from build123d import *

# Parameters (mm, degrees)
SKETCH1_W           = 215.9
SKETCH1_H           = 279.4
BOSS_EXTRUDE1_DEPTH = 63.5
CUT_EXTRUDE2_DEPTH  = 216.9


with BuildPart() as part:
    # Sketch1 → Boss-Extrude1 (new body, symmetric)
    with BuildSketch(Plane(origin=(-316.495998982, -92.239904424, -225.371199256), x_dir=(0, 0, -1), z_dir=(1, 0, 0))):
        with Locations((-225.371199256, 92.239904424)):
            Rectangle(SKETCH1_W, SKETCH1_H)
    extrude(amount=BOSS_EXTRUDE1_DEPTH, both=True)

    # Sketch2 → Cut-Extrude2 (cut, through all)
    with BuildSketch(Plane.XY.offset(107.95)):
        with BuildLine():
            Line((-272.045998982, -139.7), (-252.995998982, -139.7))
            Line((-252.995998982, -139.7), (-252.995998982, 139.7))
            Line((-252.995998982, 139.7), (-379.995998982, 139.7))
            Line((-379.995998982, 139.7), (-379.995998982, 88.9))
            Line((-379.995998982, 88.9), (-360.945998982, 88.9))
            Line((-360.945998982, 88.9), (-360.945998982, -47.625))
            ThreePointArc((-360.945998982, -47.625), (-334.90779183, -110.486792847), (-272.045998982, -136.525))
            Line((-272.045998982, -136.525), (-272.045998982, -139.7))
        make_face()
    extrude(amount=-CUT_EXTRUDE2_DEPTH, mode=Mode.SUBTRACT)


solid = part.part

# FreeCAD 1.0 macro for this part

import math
import FreeCAD as App
import Part
import Sketcher
Q = App.Units.Quantity

doc = App.newDocument("Part")
body = doc.addObject("PartDesign::Body", "Body")

sketch1 = body.newObject("Sketcher::SketchObject", "Sketch")
sketch1.AttachmentSupport = (doc.getObject("YZ_Plane"), [""])
sketch1.MapMode = "FlatFace"
sketch1.AttachmentOffset = App.Placement(App.Vector(0, 0, -316.495999), App.Rotation())
sketch1.addGeometry([
    Part.LineSegment(App.Vector(139.7, 107.95, 0), App.Vector(-139.7, 107.95, 0)),
    Part.LineSegment(App.Vector(-139.7, 107.95, 0), App.Vector(-139.7, -107.95, 0)),
    Part.LineSegment(App.Vector(-139.7, -107.95, 0), App.Vector(139.7, -107.95, 0)),
    Part.LineSegment(App.Vector(139.7, -107.95, 0), App.Vector(139.7, 107.95, 0)),
], False)
sketch1.addConstraint([
    Sketcher.Constraint("Coincident", 0, 2, 1, 1),
    Sketcher.Constraint("Coincident", 1, 2, 2, 1),
    Sketcher.Constraint("Coincident", 2, 2, 3, 1),
    Sketcher.Constraint("Coincident", 3, 2, 0, 1),
    Sketcher.Constraint("Horizontal", 0),
    Sketcher.Constraint("Vertical", 1),
    Sketcher.Constraint("Horizontal", 2),
    Sketcher.Constraint("Vertical", 3),
    Sketcher.Constraint("Symmetric", 0, 2, 2, 2, -1, 1),
    Sketcher.Constraint("DistanceX", 0, 2, 0, 1, Q("11 in")),
    Sketcher.Constraint("DistanceY", 1, 2, 1, 1, Q("8.5 in")),
])
pad1 = body.newObject("PartDesign::Pad", "Pad")
pad1.Profile = sketch1
pad1.Length = Q("5 in")
pad1.Midplane = True

sketch2 = body.newObject("Sketcher::SketchObject", "Sketch001")
sketch2.AttachmentSupport = (doc.getObject("XY_Plane"), [""])
sketch2.MapMode = "FlatFace"
sketch2.AttachmentOffset = App.Placement(App.Vector(0, 0, 4.25 * 25.4), App.Rotation())
sketch2.addGeometry([
    Part.LineSegment(App.Vector(-272.045999, -139.7, 0), App.Vector(-252.995999, -139.7, 0)),
    Part.LineSegment(App.Vector(-252.995999, -139.7, 0), App.Vector(-252.995999, 139.7, 0)),
    Part.LineSegment(App.Vector(-252.995999, 139.7, 0), App.Vector(-379.995999, 139.7, 0)),
    Part.LineSegment(App.Vector(-379.995999, 139.7, 0), App.Vector(-379.995999, 88.9, 0)),
    Part.LineSegment(App.Vector(-379.995999, 88.9, 0), App.Vector(-360.945999, 88.9, 0)),
    Part.LineSegment(App.Vector(-360.945999, 88.9, 0), App.Vector(-360.945999, -47.625, 0)),
    Part.ArcOfCircle(Part.Circle(App.Vector(-272.045999, -47.625, 0), App.Vector(0, 0, 1), 88.9), math.radians(180), math.radians(270)),
    Part.LineSegment(App.Vector(-272.045999, -136.525, 0), App.Vector(-272.045999, -139.7, 0)),
], False)
sketch2.addConstraint([
    Sketcher.Constraint("Coincident", 0, 2, 1, 1),
    Sketcher.Constraint("Coincident", 1, 2, 2, 1),
    Sketcher.Constraint("Coincident", 2, 2, 3, 1),
    Sketcher.Constraint("Coincident", 3, 2, 4, 1),
    Sketcher.Constraint("Coincident", 4, 2, 5, 1),
    Sketcher.Constraint("Tangent", 5, 2, 6, 1),
    Sketcher.Constraint("Coincident", 6, 2, 7, 1),
    Sketcher.Constraint("Coincident", 7, 2, 0, 1),
    Sketcher.Constraint("Horizontal", 0),
    Sketcher.Constraint("Vertical", 1),
    Sketcher.Constraint("Horizontal", 2),
    Sketcher.Constraint("Vertical", 3),
    Sketcher.Constraint("Horizontal", 4),
    Sketcher.Constraint("Vertical", 5),
    Sketcher.Constraint("Vertical", 7),
    Sketcher.Constraint("Equal", 0, 4),
    Sketcher.Constraint("Radius", 6, Q("3.5 in")),
    Sketcher.Constraint("DistanceX", 2, 2, 2, 1, Q("5 in")),
    Sketcher.Constraint("DistanceY", 1, 1, 1, 2, Q("11 in")),
    Sketcher.Constraint("DistanceY", 3, 2, 3, 1, Q("2 in")),
    Sketcher.Constraint("DistanceX", 0, 1, 0, 2, Q("0.75 in")),
    Sketcher.Constraint("DistanceY", 0, 2, -1, 1, Q("5.5 in")),
    Sketcher.Constraint("DistanceY", 5, 2, 5, 1, Q("5.375 in")),
    Sketcher.Constraint("DistanceX", 6, 3, -1, 1, Q("272.045999 mm")),
])
pocket1 = body.newObject("PartDesign::Pocket", "Pocket")
pocket1.Profile = sketch2
pocket1.Type = "ThroughAll"

doc.recompute()
